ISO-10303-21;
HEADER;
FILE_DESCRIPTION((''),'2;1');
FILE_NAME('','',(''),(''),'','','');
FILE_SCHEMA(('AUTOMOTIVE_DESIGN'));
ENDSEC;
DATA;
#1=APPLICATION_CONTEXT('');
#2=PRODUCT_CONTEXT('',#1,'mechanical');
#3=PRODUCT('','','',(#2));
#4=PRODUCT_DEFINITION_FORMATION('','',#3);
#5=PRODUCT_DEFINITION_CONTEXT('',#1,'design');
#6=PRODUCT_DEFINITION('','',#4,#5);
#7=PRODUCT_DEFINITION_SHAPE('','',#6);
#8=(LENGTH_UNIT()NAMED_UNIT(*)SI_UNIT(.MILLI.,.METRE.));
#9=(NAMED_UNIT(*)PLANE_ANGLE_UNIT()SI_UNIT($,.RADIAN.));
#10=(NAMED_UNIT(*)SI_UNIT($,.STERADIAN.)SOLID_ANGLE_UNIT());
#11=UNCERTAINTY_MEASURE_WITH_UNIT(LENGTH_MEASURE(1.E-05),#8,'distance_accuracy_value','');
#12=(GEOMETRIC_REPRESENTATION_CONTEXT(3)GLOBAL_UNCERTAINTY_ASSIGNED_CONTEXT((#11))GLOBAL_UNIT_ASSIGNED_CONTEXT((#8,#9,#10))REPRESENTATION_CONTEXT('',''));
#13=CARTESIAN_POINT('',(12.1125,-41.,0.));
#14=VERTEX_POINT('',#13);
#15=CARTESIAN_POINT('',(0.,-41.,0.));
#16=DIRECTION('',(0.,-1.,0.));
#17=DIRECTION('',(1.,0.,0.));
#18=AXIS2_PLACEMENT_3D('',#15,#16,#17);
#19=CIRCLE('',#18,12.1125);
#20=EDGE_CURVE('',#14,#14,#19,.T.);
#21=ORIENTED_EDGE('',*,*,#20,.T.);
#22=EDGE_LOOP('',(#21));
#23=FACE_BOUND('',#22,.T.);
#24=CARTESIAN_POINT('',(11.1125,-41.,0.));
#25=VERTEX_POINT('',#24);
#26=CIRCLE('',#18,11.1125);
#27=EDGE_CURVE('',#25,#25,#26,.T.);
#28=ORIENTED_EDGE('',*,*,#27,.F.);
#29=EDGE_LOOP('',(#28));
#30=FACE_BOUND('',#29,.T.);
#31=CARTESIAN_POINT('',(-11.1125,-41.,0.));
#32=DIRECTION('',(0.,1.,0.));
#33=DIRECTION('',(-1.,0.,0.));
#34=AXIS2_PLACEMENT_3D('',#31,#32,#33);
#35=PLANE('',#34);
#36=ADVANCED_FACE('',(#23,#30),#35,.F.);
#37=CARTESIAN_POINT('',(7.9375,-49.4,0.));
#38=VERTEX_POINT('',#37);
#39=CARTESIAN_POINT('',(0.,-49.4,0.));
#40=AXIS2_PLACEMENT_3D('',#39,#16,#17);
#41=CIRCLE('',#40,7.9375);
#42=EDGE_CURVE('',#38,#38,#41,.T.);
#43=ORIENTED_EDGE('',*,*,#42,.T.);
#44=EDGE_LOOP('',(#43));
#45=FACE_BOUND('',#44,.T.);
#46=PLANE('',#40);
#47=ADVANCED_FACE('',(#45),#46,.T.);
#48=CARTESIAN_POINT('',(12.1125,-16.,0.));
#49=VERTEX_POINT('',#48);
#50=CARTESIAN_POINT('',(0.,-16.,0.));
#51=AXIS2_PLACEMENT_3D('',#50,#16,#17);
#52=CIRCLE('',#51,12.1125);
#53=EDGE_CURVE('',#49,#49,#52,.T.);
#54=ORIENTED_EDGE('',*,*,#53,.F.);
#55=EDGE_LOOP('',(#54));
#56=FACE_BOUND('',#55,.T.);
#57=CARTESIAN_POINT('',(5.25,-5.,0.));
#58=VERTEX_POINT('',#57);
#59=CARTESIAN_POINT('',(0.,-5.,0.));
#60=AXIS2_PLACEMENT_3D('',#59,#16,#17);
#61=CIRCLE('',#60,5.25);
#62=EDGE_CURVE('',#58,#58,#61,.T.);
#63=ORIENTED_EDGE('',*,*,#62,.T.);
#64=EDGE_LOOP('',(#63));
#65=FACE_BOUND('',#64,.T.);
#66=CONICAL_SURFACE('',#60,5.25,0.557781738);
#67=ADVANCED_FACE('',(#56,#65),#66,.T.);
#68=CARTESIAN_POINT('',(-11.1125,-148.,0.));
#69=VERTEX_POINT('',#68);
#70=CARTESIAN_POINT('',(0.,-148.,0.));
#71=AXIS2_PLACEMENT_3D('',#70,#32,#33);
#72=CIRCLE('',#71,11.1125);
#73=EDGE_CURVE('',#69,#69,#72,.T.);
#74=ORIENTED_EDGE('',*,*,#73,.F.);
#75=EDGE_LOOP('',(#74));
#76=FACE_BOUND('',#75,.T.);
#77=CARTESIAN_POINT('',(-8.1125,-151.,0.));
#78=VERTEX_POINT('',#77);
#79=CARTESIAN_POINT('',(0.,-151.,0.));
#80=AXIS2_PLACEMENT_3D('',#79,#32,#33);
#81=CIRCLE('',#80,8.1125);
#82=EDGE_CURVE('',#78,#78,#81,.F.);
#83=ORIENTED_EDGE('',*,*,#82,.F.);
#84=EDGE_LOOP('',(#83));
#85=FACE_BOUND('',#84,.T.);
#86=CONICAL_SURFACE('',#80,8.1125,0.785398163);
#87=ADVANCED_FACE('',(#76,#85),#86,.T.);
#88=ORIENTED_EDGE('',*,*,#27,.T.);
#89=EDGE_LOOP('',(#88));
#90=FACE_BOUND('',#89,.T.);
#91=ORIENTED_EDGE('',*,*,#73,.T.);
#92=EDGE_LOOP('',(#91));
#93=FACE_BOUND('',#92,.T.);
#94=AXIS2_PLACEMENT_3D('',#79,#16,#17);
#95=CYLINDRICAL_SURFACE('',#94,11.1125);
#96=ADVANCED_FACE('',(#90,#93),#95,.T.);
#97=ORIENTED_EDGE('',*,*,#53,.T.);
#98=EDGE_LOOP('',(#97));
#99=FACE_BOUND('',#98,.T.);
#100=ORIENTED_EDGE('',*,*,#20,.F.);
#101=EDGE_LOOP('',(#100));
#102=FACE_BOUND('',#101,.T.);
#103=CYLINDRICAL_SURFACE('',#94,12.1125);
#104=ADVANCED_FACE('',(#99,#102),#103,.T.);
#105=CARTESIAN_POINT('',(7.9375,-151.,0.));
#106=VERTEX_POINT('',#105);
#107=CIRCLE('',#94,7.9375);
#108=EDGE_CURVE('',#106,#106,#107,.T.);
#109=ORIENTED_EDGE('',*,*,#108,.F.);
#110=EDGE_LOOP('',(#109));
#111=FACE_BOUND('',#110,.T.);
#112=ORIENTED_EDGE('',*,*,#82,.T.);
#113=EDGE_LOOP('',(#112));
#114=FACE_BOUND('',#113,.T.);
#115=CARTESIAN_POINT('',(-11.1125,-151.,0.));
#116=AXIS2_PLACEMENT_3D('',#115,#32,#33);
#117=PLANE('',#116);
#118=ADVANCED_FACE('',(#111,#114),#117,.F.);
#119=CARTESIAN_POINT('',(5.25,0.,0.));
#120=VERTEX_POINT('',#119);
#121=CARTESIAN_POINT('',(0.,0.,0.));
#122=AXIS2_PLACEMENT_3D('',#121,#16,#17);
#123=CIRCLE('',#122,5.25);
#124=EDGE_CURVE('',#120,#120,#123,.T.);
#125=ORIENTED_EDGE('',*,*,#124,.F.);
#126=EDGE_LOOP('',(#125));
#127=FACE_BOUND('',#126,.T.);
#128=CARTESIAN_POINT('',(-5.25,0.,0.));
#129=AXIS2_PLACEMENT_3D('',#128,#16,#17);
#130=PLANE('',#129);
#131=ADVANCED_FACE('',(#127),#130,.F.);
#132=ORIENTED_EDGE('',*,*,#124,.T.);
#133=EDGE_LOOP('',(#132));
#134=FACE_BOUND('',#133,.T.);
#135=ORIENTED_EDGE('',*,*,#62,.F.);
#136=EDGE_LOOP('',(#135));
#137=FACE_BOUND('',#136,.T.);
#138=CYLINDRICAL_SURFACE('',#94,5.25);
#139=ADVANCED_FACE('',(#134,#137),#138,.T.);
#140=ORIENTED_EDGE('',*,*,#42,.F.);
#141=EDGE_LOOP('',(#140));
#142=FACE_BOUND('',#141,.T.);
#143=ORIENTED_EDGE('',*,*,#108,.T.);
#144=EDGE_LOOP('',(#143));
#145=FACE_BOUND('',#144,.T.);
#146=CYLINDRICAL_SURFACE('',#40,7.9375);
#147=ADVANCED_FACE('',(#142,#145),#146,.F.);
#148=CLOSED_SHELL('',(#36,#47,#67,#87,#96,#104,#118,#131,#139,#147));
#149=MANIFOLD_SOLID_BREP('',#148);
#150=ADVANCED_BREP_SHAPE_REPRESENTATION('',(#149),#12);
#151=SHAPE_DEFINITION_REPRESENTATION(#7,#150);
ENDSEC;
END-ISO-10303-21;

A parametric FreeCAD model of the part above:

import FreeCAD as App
import Part
import Sketcher

V = App.Vector
Q = App.Units.Quantity


def edges_at(feature, points):
    """Names of the edges that pass closest to the given points."""
    edges = feature.Shape.Edges
    near = lambda p: min(range(len(edges)), key=lambda i: edges[i].distToShape(Part.Vertex(*p))[0])
    return sorted({f"Edge{near(p) + 1}" for p in points})

doc = App.newDocument("Part")
params = doc.addObject("Spreadsheet::Sheet", "Params")
for row, (alias, value) in enumerate([
    ("sketch1_width", "1 mm"),
    ("sketch1_height", "110 mm"),
    ("sketch1_height2", "151 mm"),
    ("sketch1_height3", "5 mm"),
    ("sketch1_height4", "25 mm"),
    ("revolution_angle", "360 deg"),
    ("pocket1_length", "101.6 mm"),
    ("chamfer_size", "3 mm"),
], start=1):
    params.set(f"A{row}", alias)
    params.set(f"B{row}", "=" + value)
    params.setAlias(f"B{row}", alias)

body = doc.addObject("PartDesign::Body", "Body")

sketch1 = doc.addObject("Sketcher::SketchObject", "Sketch")
body.addObject(sketch1)
sketch1.AttachmentSupport = (doc.XY_Plane, [""])
sketch1.MapMode = "FlatFace"
sketch1.addGeometry(Part.LineSegment(V(-11.1125, -41, 0), V(-11.1125, -151, 0)), False)
sketch1.addGeometry(Part.LineSegment(V(-11.1125, -151, 0), V(0, -151, 0)), False)
sketch1.addGeometry(Part.LineSegment(V(0, -151, 0), V(0, 0, 0)), False)
sketch1.addGeometry(Part.LineSegment(V(0, 0, 0), V(-5.25, 0, 0)), False)
sketch1.addGeometry(Part.LineSegment(V(-5.25, 0, 0), V(-5.25, -5, 0)), False)
sketch1.addGeometry(Part.LineSegment(V(-5.25, -5, 0), V(-12.1125, -16, 0)), False)
sketch1.addGeometry(Part.LineSegment(V(-12.1125, -16, 0), V(-12.1125, -41, 0)), False)
sketch1.addGeometry(Part.LineSegment(V(-12.1125, -41, 0), V(-11.1125, -41, 0)), False)
sketch1.addConstraint(Sketcher.Constraint("Coincident", 0, 2, 1, 1))
sketch1.addConstraint(Sketcher.Constraint("Coincident", 1, 2, 2, 1))
sketch1.addConstraint(Sketcher.Constraint("Coincident", 2, 2, 3, 1))
sketch1.addConstraint(Sketcher.Constraint("Coincident", 3, 2, 4, 1))
sketch1.addConstraint(Sketcher.Constraint("Coincident", 4, 2, 5, 1))
sketch1.addConstraint(Sketcher.Constraint("Coincident", 5, 2, 6, 1))
sketch1.addConstraint(Sketcher.Constraint("Coincident", 6, 2, 7, 1))
sketch1.addConstraint(Sketcher.Constraint("Coincident", 7, 2, 0, 1))
sketch1.addConstraint(Sketcher.Constraint("Vertical", 0))
sketch1.addConstraint(Sketcher.Constraint("Horizontal", 1))
sketch1.addConstraint(Sketcher.Constraint("Vertical", 2))
sketch1.addConstraint(Sketcher.Constraint("Horizontal", 3))
sketch1.addConstraint(Sketcher.Constraint("Vertical", 4))
sketch1.addConstraint(Sketcher.Constraint("Vertical", 6))
sketch1.addConstraint(Sketcher.Constraint("Horizontal", 7))
sketch1.addConstraint(Sketcher.Constraint("Coincident", 2, 2, -1, 1))
sketch1.addConstraint(Sketcher.Constraint("DistanceX", 7, 1, 7, 2, Q("1 mm")))
sketch1.addConstraint(Sketcher.Constraint("DistanceY", 0, 2, 0, 1, Q("110 mm")))
sketch1.addConstraint(Sketcher.Constraint("DistanceY", 2, 1, 2, 2, Q("151 mm")))
sketch1.addConstraint(Sketcher.Constraint("DistanceY", 4, 2, 4, 1, Q("5 mm")))
sketch1.addConstraint(Sketcher.Constraint("DistanceY", 6, 2, 6, 1, Q("25 mm")))
sketch1.addConstraint(Sketcher.Constraint("DistanceX", 3, 2, 3, 1, Q("5.25 mm")))
sketch1.addConstraint(Sketcher.Constraint("DistanceX", 1, 1, 1, 2, Q("11.1125 mm")))
sketch1.setExpression("Constraints[16]", "Params.sketch1_width")
sketch1.setExpression("Constraints[17]", "Params.sketch1_height")
sketch1.setExpression("Constraints[18]", "Params.sketch1_height2")
sketch1.setExpression("Constraints[19]", "Params.sketch1_height3")
sketch1.setExpression("Constraints[20]", "Params.sketch1_height4")
revolution = doc.addObject("PartDesign::Revolution", "Revolution")
body.addObject(revolution)
revolution.Profile = sketch1
revolution.ReferenceAxis = (sketch1, ["V_Axis"])
revolution.setExpression("Angle", "Params.revolution_angle")

sketch2 = doc.addObject("Sketcher::SketchObject", "Sketch001")
body.addObject(sketch2)
sketch2.AttachmentSupport = (doc.XZ_Plane, [""])
sketch2.MapMode = "FlatFace"
sketch2.AttachmentOffset = App.Placement(V(0, 0, 151), App.Rotation())
sketch2.addGeometry(Part.Circle(V(0, 0, 0), V(0, 0, 1), 7.9375), False)
sketch2.addConstraint(Sketcher.Constraint("Coincident", 0, 3, -1, 1))
sketch2.addConstraint(Sketcher.Constraint("Diameter", 0, Q("15.875 mm")))
pocket1 = doc.addObject("PartDesign::Pocket", "Pocket")
body.addObject(pocket1)
pocket1.Profile = sketch2
pocket1.setExpression("Length", "Params.pocket1_length")
doc.recompute()

chamfer = doc.addObject("PartDesign::Chamfer", "Chamfer")
body.addObject(chamfer)
chamfer.Base = (pocket1, edges_at(pocket1, [(11.113, -151, 0)]))
chamfer.setExpression("Size", "Params.chamfer_size")

doc.recompute()
